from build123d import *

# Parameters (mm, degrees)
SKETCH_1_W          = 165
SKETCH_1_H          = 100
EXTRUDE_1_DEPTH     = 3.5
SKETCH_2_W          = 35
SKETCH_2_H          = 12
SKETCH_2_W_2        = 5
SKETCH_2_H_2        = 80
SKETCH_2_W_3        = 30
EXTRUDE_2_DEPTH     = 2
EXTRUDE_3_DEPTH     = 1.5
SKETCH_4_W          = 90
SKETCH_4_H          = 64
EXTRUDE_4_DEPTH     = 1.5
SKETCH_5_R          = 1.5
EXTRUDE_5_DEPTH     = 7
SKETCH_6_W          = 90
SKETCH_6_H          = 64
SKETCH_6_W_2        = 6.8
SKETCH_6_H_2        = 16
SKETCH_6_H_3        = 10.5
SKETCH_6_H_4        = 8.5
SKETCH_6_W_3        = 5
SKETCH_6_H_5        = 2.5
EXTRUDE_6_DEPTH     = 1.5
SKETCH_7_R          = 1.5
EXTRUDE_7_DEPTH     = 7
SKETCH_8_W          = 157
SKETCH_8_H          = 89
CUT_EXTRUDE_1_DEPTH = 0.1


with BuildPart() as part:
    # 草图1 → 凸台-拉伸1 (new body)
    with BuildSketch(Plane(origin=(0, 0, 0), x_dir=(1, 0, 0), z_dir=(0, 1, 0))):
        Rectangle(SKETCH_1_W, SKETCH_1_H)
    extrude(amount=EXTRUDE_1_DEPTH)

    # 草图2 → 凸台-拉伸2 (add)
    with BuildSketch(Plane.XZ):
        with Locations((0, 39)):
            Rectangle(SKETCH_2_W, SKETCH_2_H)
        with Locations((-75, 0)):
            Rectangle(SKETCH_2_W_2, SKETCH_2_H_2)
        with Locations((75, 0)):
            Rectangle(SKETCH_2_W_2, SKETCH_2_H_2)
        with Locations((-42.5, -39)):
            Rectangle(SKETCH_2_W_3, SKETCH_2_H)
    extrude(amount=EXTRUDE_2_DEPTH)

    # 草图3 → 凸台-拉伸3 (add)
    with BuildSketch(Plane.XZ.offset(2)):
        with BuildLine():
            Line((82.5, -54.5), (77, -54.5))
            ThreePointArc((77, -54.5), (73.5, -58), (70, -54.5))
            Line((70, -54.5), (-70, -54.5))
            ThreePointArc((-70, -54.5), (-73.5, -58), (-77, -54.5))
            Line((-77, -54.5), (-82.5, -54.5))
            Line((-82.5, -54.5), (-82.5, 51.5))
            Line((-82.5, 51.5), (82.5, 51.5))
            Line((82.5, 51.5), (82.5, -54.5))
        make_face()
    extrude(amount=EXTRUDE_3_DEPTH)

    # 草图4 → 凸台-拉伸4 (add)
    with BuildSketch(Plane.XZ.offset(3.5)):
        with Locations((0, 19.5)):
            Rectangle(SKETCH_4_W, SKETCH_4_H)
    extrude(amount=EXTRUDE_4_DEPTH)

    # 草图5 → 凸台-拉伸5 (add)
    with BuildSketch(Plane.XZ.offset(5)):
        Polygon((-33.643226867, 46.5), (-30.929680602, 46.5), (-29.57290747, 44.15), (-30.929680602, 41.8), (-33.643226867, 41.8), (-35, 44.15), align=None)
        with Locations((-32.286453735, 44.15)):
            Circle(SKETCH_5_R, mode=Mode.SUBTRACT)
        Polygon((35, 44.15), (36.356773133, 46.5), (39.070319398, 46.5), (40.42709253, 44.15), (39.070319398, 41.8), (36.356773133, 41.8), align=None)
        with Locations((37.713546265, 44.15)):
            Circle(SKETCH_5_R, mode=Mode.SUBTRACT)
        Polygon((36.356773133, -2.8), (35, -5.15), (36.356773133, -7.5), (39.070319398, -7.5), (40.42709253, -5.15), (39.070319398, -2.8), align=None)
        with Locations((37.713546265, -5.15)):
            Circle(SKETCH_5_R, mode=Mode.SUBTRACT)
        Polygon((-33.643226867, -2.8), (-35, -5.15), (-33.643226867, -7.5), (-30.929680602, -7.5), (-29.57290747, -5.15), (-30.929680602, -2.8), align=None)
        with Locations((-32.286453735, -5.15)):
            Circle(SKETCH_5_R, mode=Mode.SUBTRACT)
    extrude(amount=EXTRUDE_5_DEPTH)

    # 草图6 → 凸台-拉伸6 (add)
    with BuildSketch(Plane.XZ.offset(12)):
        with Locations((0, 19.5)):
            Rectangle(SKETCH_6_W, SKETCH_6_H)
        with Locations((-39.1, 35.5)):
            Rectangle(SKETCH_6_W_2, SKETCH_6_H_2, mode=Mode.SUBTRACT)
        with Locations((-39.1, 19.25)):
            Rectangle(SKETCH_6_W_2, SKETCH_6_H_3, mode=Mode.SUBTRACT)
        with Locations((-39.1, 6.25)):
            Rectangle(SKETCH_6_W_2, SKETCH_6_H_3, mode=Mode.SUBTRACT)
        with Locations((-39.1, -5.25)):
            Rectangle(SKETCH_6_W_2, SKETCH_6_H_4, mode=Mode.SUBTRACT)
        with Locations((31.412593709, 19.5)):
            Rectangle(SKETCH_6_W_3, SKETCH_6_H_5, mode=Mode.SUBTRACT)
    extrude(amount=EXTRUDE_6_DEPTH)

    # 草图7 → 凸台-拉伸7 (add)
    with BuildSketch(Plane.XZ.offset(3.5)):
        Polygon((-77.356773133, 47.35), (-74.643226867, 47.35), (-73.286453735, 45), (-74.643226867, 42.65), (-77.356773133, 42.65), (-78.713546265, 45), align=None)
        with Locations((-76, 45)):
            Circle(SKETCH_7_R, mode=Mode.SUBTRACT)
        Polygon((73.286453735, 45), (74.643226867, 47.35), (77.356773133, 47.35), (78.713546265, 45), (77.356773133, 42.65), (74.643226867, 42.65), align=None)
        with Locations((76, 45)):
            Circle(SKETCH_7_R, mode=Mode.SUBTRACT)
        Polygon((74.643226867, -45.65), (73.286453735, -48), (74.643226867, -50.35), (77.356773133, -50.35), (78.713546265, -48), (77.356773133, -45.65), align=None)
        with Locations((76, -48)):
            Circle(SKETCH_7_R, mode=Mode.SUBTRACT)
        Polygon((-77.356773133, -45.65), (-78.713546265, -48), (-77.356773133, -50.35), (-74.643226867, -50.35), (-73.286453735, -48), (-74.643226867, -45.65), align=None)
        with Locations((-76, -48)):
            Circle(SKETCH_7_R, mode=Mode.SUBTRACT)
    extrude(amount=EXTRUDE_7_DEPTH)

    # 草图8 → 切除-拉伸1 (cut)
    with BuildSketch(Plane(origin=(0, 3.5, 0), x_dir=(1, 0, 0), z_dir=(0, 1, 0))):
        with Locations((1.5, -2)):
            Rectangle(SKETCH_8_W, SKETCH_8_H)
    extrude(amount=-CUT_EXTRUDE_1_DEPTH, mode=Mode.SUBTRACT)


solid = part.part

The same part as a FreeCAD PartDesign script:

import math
import FreeCAD as App
import Part
import Sketcher
Q = App.Units.Quantity


def add_polygon(sketch, points):
    """Adds a closed chain of lines whose ends are joined by coincident constraints."""
    first, n = sketch.GeometryCount, len(points)
    for a, b in zip(points, points[1:] + points[:1]):
        sketch.addGeometry(Part.LineSegment(App.Vector(*a, 0), App.Vector(*b, 0)), False)
    for i in range(n):
        sketch.addConstraint(Sketcher.Constraint("Coincident", first + i, 2, first + (i + 1) % n, 1))

doc = App.newDocument("Part")
body = doc.addObject("PartDesign::Body", "Body")

# Sketch on XZ plane
sketch1 = body.newObject("Sketcher::SketchObject", "Sketch")
sketch1.AttachmentSupport = (doc.getObject("XZ_Plane"), [""])
sketch1.MapMode = "FlatFace"
add_polygon(sketch1, [(-82, -50), (-82, 50), (82, 50), (82, -50)])  # lines 0-3
sketch1.addConstraint(Sketcher.Constraint("Vertical", 0))
sketch1.addConstraint(Sketcher.Constraint("Horizontal", 1))
sketch1.addConstraint(Sketcher.Constraint("Vertical", 2))
sketch1.addConstraint(Sketcher.Constraint("Horizontal", 3))
sketch1.addConstraint(Sketcher.Constraint("Symmetric", 0, 2, 2, 2, -1, 1))
sketch1.addConstraint(Sketcher.Constraint("DistanceX", 1, 1, 1, 2, 165.0))
sketch1.addConstraint(Sketcher.Constraint("DistanceY", 0, 1, 0, 2, 100.0))
pad1 = body.newObject("PartDesign::Pad", "Pad")
pad1.Profile = sketch1
pad1.Length = 3.5
pad1.Reversed = True

# Sketch on XZ plane
sketch2 = body.newObject("Sketcher::SketchObject", "Sketch001")
sketch2.AttachmentSupport = (doc.getObject("XZ_Plane"), [""])
sketch2.MapMode = "FlatFace"
add_polygon(sketch2, [(-18, 45), (-18, 33), (18, 33), (18, 45)])  # lines 0-3
add_polygon(sketch2, [(-78, 40), (-78, -40), (-72, -40), (-72, 40)])  # lines 4-7
add_polygon(sketch2, [(72, 40), (72, -40), (78, -40), (78, 40)])  # lines 8-11
add_polygon(sketch2, [(-58, -33), (-58, -45), (-28, -45), (-28, -33)])  # lines 12-15
sketch2.addConstraint(Sketcher.Constraint("Vertical", 0))
sketch2.addConstraint(Sketcher.Constraint("Horizontal", 1))
sketch2.addConstraint(Sketcher.Constraint("Vertical", 2))
sketch2.addConstraint(Sketcher.Constraint("Horizontal", 3))
sketch2.addConstraint(Sketcher.Constraint("Vertical", 4))
sketch2.addConstraint(Sketcher.Constraint("Horizontal", 5))
sketch2.addConstraint(Sketcher.Constraint("Vertical", 6))
sketch2.addConstraint(Sketcher.Constraint("Horizontal", 7))
sketch2.addConstraint(Sketcher.Constraint("Vertical", 8))
sketch2.addConstraint(Sketcher.Constraint("Horizontal", 9))
sketch2.addConstraint(Sketcher.Constraint("Vertical", 10))
sketch2.addConstraint(Sketcher.Constraint("Horizontal", 11))
sketch2.addConstraint(Sketcher.Constraint("Vertical", 12))
sketch2.addConstraint(Sketcher.Constraint("Horizontal", 13))
sketch2.addConstraint(Sketcher.Constraint("Vertical", 14))
sketch2.addConstraint(Sketcher.Constraint("Horizontal", 15))
sketch2.addConstraint(Sketcher.Constraint("Symmetric", 6, 2, 8, 2, -1, 1))
sketch2.addConstraint(Sketcher.Constraint("Symmetric", 4, 2, 10, 2, -1, 1))
sketch2.addConstraint(Sketcher.Constraint("Horizontal", 5, 2, 8, 2))
sketch2.addConstraint(Sketcher.Constraint("Equal", 2, 12))
sketch2.addConstraint(Sketcher.Constraint("DistanceX", 1, 1, 1, 2, 35.0))
sketch2.addConstraint(Sketcher.Constraint("DistanceX", 5, 1, 5, 2, 5.0))
sketch2.addConstraint(Sketcher.Constraint("DistanceX", 13, 1, 13, 2, 30.0))
sketch2.addConstraint(Sketcher.Constraint("DistanceY", 0, 2, 0, 1, 12.0))
sketch2.addConstraint(Sketcher.Constraint("DistanceY", 4, 2, 4, 1, 80.0))
sketch2.addConstraint(Sketcher.Constraint("DistanceY", -1, 1, 0, 2, 33.0))
sketch2.addConstraint(Sketcher.Constraint("DistanceY", 12, 2, -1, 1, 45.0))
sketch2.addConstraint(Sketcher.Constraint("DistanceX", 4, 2, 0, 2, 60.0))
sketch2.addConstraint(Sketcher.Constraint("DistanceX", 1, 2, 8, 2, 55.0))
sketch2.addConstraint(Sketcher.Constraint("DistanceX", 5, 2, 12, 2, 15.0))
pad2 = body.newObject("PartDesign::Pad", "Pad001")
pad2.Profile = sketch2
pad2.Length = 2

# Sketch on XZ plane
sketch3 = body.newObject("Sketcher::SketchObject", "Sketch002")
sketch3.AttachmentSupport = (doc.getObject("XZ_Plane"), [""])
sketch3.MapMode = "FlatFace"
sketch3.AttachmentOffset = App.Placement(App.Vector(0, 0, 2), App.Rotation())
sketch3.addGeometry(Part.LineSegment(App.Vector(77, -54.5, 0), App.Vector(82.5, -54.5, 0)), False)
sketch3.addGeometry(Part.LineSegment(App.Vector(82.5, -54.5, 0), App.Vector(82.5, 51.5, 0)), False)
sketch3.addGeometry(Part.LineSegment(App.Vector(82.5, 51.5, 0), App.Vector(-82.5, 51.5, 0)), False)
sketch3.addGeometry(Part.LineSegment(App.Vector(-82.5, 51.5, 0), App.Vector(-82.5, -54.5, 0)), False)
sketch3.addGeometry(Part.LineSegment(App.Vector(-82.5, -54.5, 0), App.Vector(-77, -54.5, 0)), False)
sketch3.addGeometry(Part.ArcOfCircle(Part.Circle(App.Vector(-73.5, -54.5, 0), App.Vector(0, 0, 1), 3.5), math.radians(180), math.radians(360)), False)
sketch3.addGeometry(Part.LineSegment(App.Vector(-70, -54.5, 0), App.Vector(70, -54.5, 0)), False)
sketch3.addGeometry(Part.ArcOfCircle(Part.Circle(App.Vector(73.5, -54.5, 0), App.Vector(0, 0, 1), 3.5), math.radians(180), math.radians(360)), False)
sketch3.addConstraint(Sketcher.Constraint("Coincident", 0, 2, 1, 1))
sketch3.addConstraint(Sketcher.Constraint("Coincident", 1, 2, 2, 1))
sketch3.addConstraint(Sketcher.Constraint("Coincident", 2, 2, 3, 1))
sketch3.addConstraint(Sketcher.Constraint("Coincident", 3, 2, 4, 1))
sketch3.addConstraint(Sketcher.Constraint("Coincident", 4, 2, 5, 1))
sketch3.addConstraint(Sketcher.Constraint("Coincident", 5, 2, 6, 1))
sketch3.addConstraint(Sketcher.Constraint("Coincident", 6, 2, 7, 1))
sketch3.addConstraint(Sketcher.Constraint("Coincident", 7, 2, 0, 1))
sketch3.addConstraint(Sketcher.Constraint("Horizontal", 0))
sketch3.addConstraint(Sketcher.Constraint("Vertical", 1))
sketch3.addConstraint(Sketcher.Constraint("Horizontal", 2))
sketch3.addConstraint(Sketcher.Constraint("Vertical", 3))
sketch3.addConstraint(Sketcher.Constraint("Horizontal", 4))
sketch3.addConstraint(Sketcher.Constraint("Horizontal", 6))
sketch3.addConstraint(Sketcher.Constraint("Equal", 5, 7))
sketch3.addConstraint(Sketcher.Constraint("Symmetric", 5, 3, 7, 3, -2))
sketch3.addConstraint(Sketcher.Constraint("Symmetric", 0, 2, 3, 2, -2))
sketch3.addConstraint(Sketcher.Constraint("Horizontal", 7, 3, 0, 2))
sketch3.addConstraint(Sketcher.Constraint("Horizontal", 4, 2, 5, 2))
sketch3.addConstraint(Sketcher.Constraint("Radius", 5, 3.5))
sketch3.addConstraint(Sketcher.Constraint("DistanceX", 2, 2, 2, 1, 165.0))
sketch3.addConstraint(Sketcher.Constraint("DistanceX", 6, 1, 6, 2, 140.0))
sketch3.addConstraint(Sketcher.Constraint("DistanceY", 1, 1, 1, 2, 106.0))
sketch3.addConstraint(Sketcher.Constraint("DistanceY", 5, 3, -1, 1, 54.5))
pad3 = body.newObject("PartDesign::Pad", "Pad002")
pad3.Profile = sketch3
pad3.Length = 1.5

# Sketch on XZ plane
sketch4 = body.newObject("Sketcher::SketchObject", "Sketch003")
sketch4.AttachmentSupport = (doc.getObject("XZ_Plane"), [""])
sketch4.MapMode = "FlatFace"
sketch4.AttachmentOffset = App.Placement(App.Vector(0, 0, 3.5), App.Rotation())
add_polygon(sketch4, [(-45, 52), (-45, -12), (45, -12), (45, 52)])  # lines 0-3
sketch4.addConstraint(Sketcher.Constraint("Vertical", 0))
sketch4.addConstraint(Sketcher.Constraint("Horizontal", 1))
sketch4.addConstraint(Sketcher.Constraint("Vertical", 2))
sketch4.addConstraint(Sketcher.Constraint("Horizontal", 3))
sketch4.addConstraint(Sketcher.Constraint("DistanceX", 1, 1, 1, 2, 90.0))
sketch4.addConstraint(Sketcher.Constraint("DistanceY", 0, 2, 0, 1, 64.0))
sketch4.addConstraint(Sketcher.Constraint("DistanceX", 0, 2, -1, 1, 45.0))
sketch4.addConstraint(Sketcher.Constraint("DistanceY", 0, 2, -1, 1, 12.5))
pad4 = body.newObject("PartDesign::Pad", "Pad003")
pad4.Profile = sketch4
pad4.Length = 1.5

# Sketch on XZ plane
sketch5 = body.newObject("Sketcher::SketchObject", "Sketch004")
sketch5.AttachmentSupport = (doc.getObject("XZ_Plane"), [""])
sketch5.MapMode = "FlatFace"
sketch5.AttachmentOffset = App.Placement(App.Vector(0, 0, 5), App.Rotation())
add_polygon(sketch5, [(-30.9, 46.5), (-33.6, 46.5), (-35, 44.1), (-33.6, 41.8), (-30.9, 41.8), (-29.6, 44.1)])  # lines 0-5
sketch5.addGeometry(Part.Circle(App.Vector(-32.3, 44.1, 0), App.Vector(0, 0, 1), 1.5), False)  # 6
add_polygon(sketch5, [(36.4, 46.5), (35, 44.1), (36.4, 41.8), (39.1, 41.8), (40.4, 44.1), (39.1, 46.5)])  # lines 7-12
sketch5.addGeometry(Part.Circle(App.Vector(37.7, 44.1, 0), App.Vector(0, 0, 1), 1.5), False)  # 13
add_polygon(sketch5, [(36.4, -2.8), (35, -5.2), (36.4, -7.5), (39.1, -7.5), (40.4, -5.2), (39.1, -2.8)])  # lines 14-19
sketch5.addGeometry(Part.Circle(App.Vector(37.7, -5.2, 0), App.Vector(0, 0, 1), 1.5), False)  # 20
add_polygon(sketch5, [(-33.6, -2.8), (-35, -5.2), (-33.6, -7.5), (-30.9, -7.5), (-29.6, -5.2), (-30.9, -2.8)])  # lines 21-26
sketch5.addGeometry(Part.Circle(App.Vector(-32.3, -5.2, 0), App.Vector(0, 0, 1), 1.5), False)  # 27
sketch5.addConstraint(Sketcher.Constraint("Horizontal", 0))
sketch5.addConstraint(Sketcher.Constraint("Horizontal", 3))
sketch5.addConstraint(Sketcher.Constraint("Horizontal", 9))
sketch5.addConstraint(Sketcher.Constraint("Horizontal", 12))
sketch5.addConstraint(Sketcher.Constraint("Horizontal", 16))
sketch5.addConstraint(Sketcher.Constraint("Horizontal", 19))
sketch5.addConstraint(Sketcher.Constraint("Horizontal", 23))
sketch5.addConstraint(Sketcher.Constraint("Horizontal", 26))
sketch5.addConstraint(Sketcher.Constraint("Equal", 6, 13))
sketch5.addConstraint(Sketcher.Constraint("Equal", 13, 20))
sketch5.addConstraint(Sketcher.Constraint("Equal", 20, 27))
sketch5.addConstraint(Sketcher.Constraint("Symmetric", 1, 2, 7, 2, -2))
sketch5.addConstraint(Sketcher.Constraint("Symmetric", 14, 2, 21, 2, -2))
sketch5.addConstraint(Sketcher.Constraint("Parallel", 1, 4))
sketch5.addConstraint(Sketcher.Constraint("Parallel", 2, 5))
sketch5.addConstraint(Sketcher.Constraint("Parallel", 4, 7))
sketch5.addConstraint(Sketcher.Constraint("Parallel", 5, 8))
sketch5.addConstraint(Sketcher.Constraint("Parallel", 7, 10))
sketch5.addConstraint(Sketcher.Constraint("Parallel", 8, 11))
sketch5.addConstraint(Sketcher.Constraint("Parallel", 10, 14))
sketch5.addConstraint(Sketcher.Constraint("Parallel", 11, 15))
sketch5.addConstraint(Sketcher.Constraint("Parallel", 14, 17))
sketch5.addConstraint(Sketcher.Constraint("Parallel", 15, 18))
sketch5.addConstraint(Sketcher.Constraint("Parallel", 17, 21))
sketch5.addConstraint(Sketcher.Constraint("Parallel", 18, 22))
sketch5.addConstraint(Sketcher.Constraint("Parallel", 21, 24))
sketch5.addConstraint(Sketcher.Constraint("Parallel", 22, 25))
sketch5.addConstraint(Sketcher.Constraint("Horizontal", 6, 3, 13, 3))
sketch5.addConstraint(Sketcher.Constraint("Horizontal", 20, 3, 27, 3))
sketch5.addConstraint(Sketcher.Constraint("Horizontal", 13, 3, 1, 2))
sketch5.addConstraint(Sketcher.Constraint("Horizontal", 1, 2, 4, 2))
sketch5.addConstraint(Sketcher.Constraint("Horizontal", 3, 2, 8, 2))
sketch5.addConstraint(Sketcher.Constraint("Horizontal", 7, 2, 10, 2))
sketch5.addConstraint(Sketcher.Constraint("Horizontal", 5, 2, 11, 2))
sketch5.addConstraint(Sketcher.Constraint("Horizontal", 27, 3, 14, 2))
sketch5.addConstraint(Sketcher.Constraint("Horizontal", 14, 2, 17, 2))
sketch5.addConstraint(Sketcher.Constraint("Horizontal", 16, 2, 22, 2))
sketch5.addConstraint(Sketcher.Constraint("Horizontal", 21, 2, 24, 2))
sketch5.addConstraint(Sketcher.Constraint("Horizontal", 19, 2, 25, 2))
sketch5.addConstraint(Sketcher.Constraint("Vertical", 13, 3, 20, 3))
sketch5.addConstraint(Sketcher.Constraint("Vertical", 6, 3, 27, 3))
sketch5.addConstraint(Sketcher.Constraint("Vertical", 0, 2, 2, 2))
sketch5.addConstraint(Sketcher.Constraint("Vertical", 3, 2, 5, 2))
sketch5.addConstraint(Sketcher.Constraint("Vertical", 7, 2, 14, 2))
sketch5.addConstraint(Sketcher.Constraint("Vertical", 12, 2, 15, 2))
sketch5.addConstraint(Sketcher.Constraint("Vertical", 11, 2, 16, 2))
sketch5.addConstraint(Sketcher.Constraint("Vertical", 16, 2, 18, 2))
sketch5.addConstraint(Sketcher.Constraint("Vertical", 5, 2, 23, 2))
sketch5.addConstraint(Sketcher.Constraint("Equal", 3, 9))
sketch5.addConstraint(Sketcher.Constraint("Diameter", 6, 3.0))
sketch5.addConstraint(Sketcher.Constraint("Angle", 1, Q("-120 deg")))
sketch5.addConstraint(Sketcher.Constraint("DistanceX", 1, 2, -1, 1, 35.0))
sketch5.addConstraint(Sketcher.Constraint("DistanceX", 6, 3, 13, 3, 70.0))
sketch5.addConstraint(Sketcher.Constraint("DistanceY", -1, 1, 0, 2, 46.5))
sketch5.addConstraint(Sketcher.Constraint("DistanceY", -1, 1, 2, 2, 41.8))
sketch5.addConstraint(Sketcher.Constraint("DistanceY", 15, 2, -1, 1, 7.5))
sketch5.addConstraint(Sketcher.Constraint("DistanceX", 0, 2, 0, 1, 2.713546))
sketch5.addConstraint(Sketcher.Constraint("DistanceX", 6, 3, -1, 1, 32.286454))
pad5 = body.newObject("PartDesign::Pad", "Pad004")
pad5.Profile = sketch5
pad5.Length = 7

# Sketch on XZ plane
sketch6 = body.newObject("Sketcher::SketchObject", "Sketch005")
sketch6.AttachmentSupport = (doc.getObject("XZ_Plane"), [""])
sketch6.MapMode = "FlatFace"
sketch6.AttachmentOffset = App.Placement(App.Vector(0, 0, 12), App.Rotation())
add_polygon(sketch6, [(-45, 51.5), (-45, -12.5), (45, -12.5), (45, 51.5)])  # lines 0-3
add_polygon(sketch6, [(-35.7, -9.5), (-42.5, -9.5), (-42.5, -1), (-35.7, -1)])  # lines 4-7
add_polygon(sketch6, [(-35.7, 1), (-42.5, 1), (-42.5, 11.5), (-35.7, 11.5)])  # lines 8-11
add_polygon(sketch6, [(-35.7, 14), (-42.5, 14), (-42.5, 24.5), (-35.7, 24.5)])  # lines 12-15
add_polygon(sketch6, [(-35.7, 27.5), (-42.5, 27.5), (-42.5, 43.5), (-35.7, 43.5)])  # lines 16-19
add_polygon(sketch6, [(33.9, 18.2), (28.9, 18.2), (28.9, 20.8), (33.9, 20.8)])  # lines 20-23
sketch6.addConstraint(Sketcher.Constraint("Vertical", 0))
sketch6.addConstraint(Sketcher.Constraint("Horizontal", 1))
sketch6.addConstraint(Sketcher.Constraint("Vertical", 2))
sketch6.addConstraint(Sketcher.Constraint("Horizontal", 3))
sketch6.addConstraint(Sketcher.Constraint("Horizontal", 4))
sketch6.addConstraint(Sketcher.Constraint("Vertical", 5))
sketch6.addConstraint(Sketcher.Constraint("Horizontal", 6))
sketch6.addConstraint(Sketcher.Constraint("Vertical", 7))
sketch6.addConstraint(Sketcher.Constraint("Horizontal", 8))
sketch6.addConstraint(Sketcher.Constraint("Vertical", 9))
sketch6.addConstraint(Sketcher.Constraint("Horizontal", 10))
sketch6.addConstraint(Sketcher.Constraint("Vertical", 11))
sketch6.addConstraint(Sketcher.Constraint("Horizontal", 12))
sketch6.addConstraint(Sketcher.Constraint("Vertical", 13))
sketch6.addConstraint(Sketcher.Constraint("Horizontal", 14))
sketch6.addConstraint(Sketcher.Constraint("Vertical", 15))
sketch6.addConstraint(Sketcher.Constraint("Horizontal", 16))
sketch6.addConstraint(Sketcher.Constraint("Vertical", 17))
sketch6.addConstraint(Sketcher.Constraint("Horizontal", 18))
sketch6.addConstraint(Sketcher.Constraint("Vertical", 19))
sketch6.addConstraint(Sketcher.Constraint("Horizontal", 20))
sketch6.addConstraint(Sketcher.Constraint("Vertical", 21))
sketch6.addConstraint(Sketcher.Constraint("Horizontal", 22))
sketch6.addConstraint(Sketcher.Constraint("Vertical", 23))
sketch6.addConstraint(Sketcher.Constraint("Symmetric", 5, 2, 8, 2, -1))
sketch6.addConstraint(Sketcher.Constraint("Vertical", 7, 2, 10, 2))
sketch6.addConstraint(Sketcher.Constraint("Vertical", 9, 2, 12, 2))
sketch6.addConstraint(Sketcher.Constraint("Vertical", 11, 2, 14, 2))
sketch6.addConstraint(Sketcher.Constraint("Vertical", 13, 2, 16, 2))
sketch6.addConstraint(Sketcher.Constraint("Vertical", 15, 2, 18, 2))
sketch6.addConstraint(Sketcher.Constraint("Equal", 11, 13))
sketch6.addConstraint(Sketcher.Constraint("DistanceX", 1, 1, 1, 2, 90.0))
sketch6.addConstraint(Sketcher.Constraint("DistanceX", 20, 2, 20, 1, 5.0))
sketch6.addConstraint(Sketcher.Constraint("DistanceY", 0, 2, 0, 1, 64.0))
sketch6.addConstraint(Sketcher.Constraint("DistanceY", 17, 1, 17, 2, 16.0))
sketch6.addConstraint(Sketcher.Constraint("DistanceX", 4, 2, 4, 1, 6.8))
sketch6.addConstraint(Sketcher.Constraint("DistanceY", 5, 1, 5, 2, 8.5))
sketch6.addConstraint(Sketcher.Constraint("DistanceY", 9, 1, 9, 2, 10.5))
sketch6.addConstraint(Sketcher.Constraint("DistanceY", 21, 1, 21, 2, 2.5))
sketch6.addConstraint(Sketcher.Constraint("DistanceX", 0, 2, -1, 1, 45.0))
sketch6.addConstraint(Sketcher.Constraint("DistanceY", 5, 2, -1, 1, 1.0))
sketch6.addConstraint(Sketcher.Constraint("DistanceY", -1, 1, 12, 2, 14.0))
sketch6.addConstraint(Sketcher.Constraint("DistanceY", 0, 2, 4, 2, 3.0))
sketch6.addConstraint(Sketcher.Constraint("DistanceY", 13, 2, 16, 2, 3.0))
sketch6.addConstraint(Sketcher.Constraint("DistanceX", 4, 2, -1, 1, 42.5))
sketch6.addConstraint(Sketcher.Constraint("DistanceY", -1, 1, 20, 2, 18.25))
sketch6.addConstraint(Sketcher.Constraint("DistanceX", -1, 1, 20, 2, 28.912594))
pad6 = body.newObject("PartDesign::Pad", "Pad005")
pad6.Profile = sketch6
pad6.Length = 1.5

# Sketch on XZ plane
sketch7 = body.newObject("Sketcher::SketchObject", "Sketch006")
sketch7.AttachmentSupport = (doc.getObject("XZ_Plane"), [""])
sketch7.MapMode = "FlatFace"
sketch7.AttachmentOffset = App.Placement(App.Vector(0, 0, 3.5), App.Rotation())
add_polygon(sketch7, [(-74.6, 47.4), (-77.4, 47.4), (-78.7, 45), (-77.4, 42.6), (-74.6, 42.6), (-73.3, 45)])  # lines 0-5
sketch7.addGeometry(Part.Circle(App.Vector(-76, 45, 0), App.Vector(0, 0, 1), 1.5), False)  # 6
add_polygon(sketch7, [(74.6, 47.4), (73.3, 45), (74.6, 42.6), (77.4, 42.6), (78.7, 45), (77.4, 47.4)])  # lines 7-12
sketch7.addGeometry(Part.Circle(App.Vector(76, 45, 0), App.Vector(0, 0, 1), 1.5), False)  # 13
add_polygon(sketch7, [(74.6, -45.6), (73.3, -48), (74.6, -50.4), (77.4, -50.4), (78.7, -48), (77.4, -45.6)])  # lines 14-19
sketch7.addGeometry(Part.Circle(App.Vector(76, -48, 0), App.Vector(0, 0, 1), 1.5), False)  # 20
add_polygon(sketch7, [(-77.4, -45.6), (-78.7, -48), (-77.4, -50.4), (-74.6, -50.4), (-73.3, -48), (-74.6, -45.6)])  # lines 21-26
sketch7.addGeometry(Part.Circle(App.Vector(-76, -48, 0), App.Vector(0, 0, 1), 1.5), False)  # 27
sketch7.addConstraint(Sketcher.Constraint("Horizontal", 0))
sketch7.addConstraint(Sketcher.Constraint("Horizontal", 3))
sketch7.addConstraint(Sketcher.Constraint("Horizontal", 9))
sketch7.addConstraint(Sketcher.Constraint("Horizontal", 12))
sketch7.addConstraint(Sketcher.Constraint("Horizontal", 16))
sketch7.addConstraint(Sketcher.Constraint("Horizontal", 19))
sketch7.addConstraint(Sketcher.Constraint("Horizontal", 23))
sketch7.addConstraint(Sketcher.Constraint("Horizontal", 26))
sketch7.addConstraint(Sketcher.Constraint("Equal", 6, 13))
sketch7.addConstraint(Sketcher.Constraint("Equal", 13, 20))
sketch7.addConstraint(Sketcher.Constraint("Equal", 20, 27))
sketch7.addConstraint(Sketcher.Constraint("Symmetric", 6, 3, 13, 3, -2))
sketch7.addConstraint(Sketcher.Constraint("Symmetric", 20, 3, 27, 3, -2))
sketch7.addConstraint(Sketcher.Constraint("Symmetric", 4, 2, 7, 2, -2))
sketch7.addConstraint(Sketcher.Constraint("Symmetric", 3, 2, 8, 2, -2))
sketch7.addConstraint(Sketcher.Constraint("Symmetric", 1, 2, 10, 2, -2))
sketch7.addConstraint(Sketcher.Constraint("Symmetric", 0, 2, 11, 2, -2))
sketch7.addConstraint(Sketcher.Constraint("Symmetric", 17, 2, 21, 2, -2))
sketch7.addConstraint(Sketcher.Constraint("Symmetric", 16, 2, 22, 2, -2))
sketch7.addConstraint(Sketcher.Constraint("Symmetric", 14, 2, 24, 2, -2))
sketch7.addConstraint(Sketcher.Constraint("Symmetric", 19, 2, 25, 2, -2))
sketch7.addConstraint(Sketcher.Constraint("Parallel", 1, 4))
sketch7.addConstraint(Sketcher.Constraint("Parallel", 2, 5))
sketch7.addConstraint(Sketcher.Constraint("Parallel", 4, 7))
sketch7.addConstraint(Sketcher.Constraint("Parallel", 5, 8))
sketch7.addConstraint(Sketcher.Constraint("Parallel", 7, 10))
sketch7.addConstraint(Sketcher.Constraint("Parallel", 10, 14))
sketch7.addConstraint(Sketcher.Constraint("Parallel", 11, 15))
sketch7.addConstraint(Sketcher.Constraint("Parallel", 14, 17))
sketch7.addConstraint(Sketcher.Constraint("Parallel", 15, 18))
sketch7.addConstraint(Sketcher.Constraint("Parallel", 17, 21))
sketch7.addConstraint(Sketcher.Constraint("Parallel", 21, 24))
sketch7.addConstraint(Sketcher.Constraint("Horizontal", 13, 3, 1, 2))
sketch7.addConstraint(Sketcher.Constraint("Horizontal", 1, 2, 4, 2))
sketch7.addConstraint(Sketcher.Constraint("Horizontal", 27, 3, 14, 2))
sketch7.addConstraint(Sketcher.Constraint("Horizontal", 14, 2, 17, 2))
sketch7.addConstraint(Sketcher.Constraint("Vertical", 13, 3, 20, 3))
sketch7.addConstraint(Sketcher.Constraint("Vertical", 0, 2, 2, 2))
sketch7.addConstraint(Sketcher.Constraint("Vertical", 7, 2, 14, 2))
sketch7.addConstraint(Sketcher.Constraint("Vertical", 12, 2, 15, 2))
sketch7.addConstraint(Sketcher.Constraint("Vertical", 11, 2, 16, 2))
sketch7.addConstraint(Sketcher.Constraint("Vertical", 16, 2, 18, 2))
sketch7.addConstraint(Sketcher.Constraint("Diameter", 6, 3.0))
sketch7.addConstraint(Sketcher.Constraint("Angle", 1, Q("-120 deg")))
sketch7.addConstraint(Sketcher.Constraint("DistanceX", 6, 3, -1, 1, 76.0))
sketch7.addConstraint(Sketcher.Constraint("DistanceY", -1, 1, 6, 3, 45.0))
sketch7.addConstraint(Sketcher.Constraint("DistanceY", 20, 3, -1, 1, 48.0))
sketch7.addConstraint(Sketcher.Constraint("DistanceY", 2, 2, 0, 2, 4.7))
sketch7.addConstraint(Sketcher.Constraint("DistanceX", 0, 2, 0, 1, 2.713546))
sketch7.addConstraint(Sketcher.Constraint("DistanceX", 3, 2, 7, 2, 147.929681))
pad7 = body.newObject("PartDesign::Pad", "Pad006")
pad7.Profile = sketch7
pad7.Length = 7

# Sketch on XZ plane
sketch8 = body.newObject("Sketcher::SketchObject", "Sketch007")
sketch8.AttachmentSupport = (doc.getObject("XZ_Plane"), [""])
sketch8.MapMode = "FlatFace"
sketch8.AttachmentOffset = App.Placement(App.Vector(0, 0, -3.5), App.Rotation())
add_polygon(sketch8, [(-77, -42), (-77, 46), (80, 46), (80, -42)])  # lines 0-3
sketch8.addConstraint(Sketcher.Constraint("Vertical", 0))
sketch8.addConstraint(Sketcher.Constraint("Horizontal", 1))
sketch8.addConstraint(Sketcher.Constraint("Vertical", 2))
sketch8.addConstraint(Sketcher.Constraint("Horizontal", 3))
sketch8.addConstraint(Sketcher.Constraint("DistanceX", 1, 1, 1, 2, 157.0))
sketch8.addConstraint(Sketcher.Constraint("DistanceY", 0, 1, 0, 2, 89.0))
sketch8.addConstraint(Sketcher.Constraint("DistanceX", 0, 2, -1, 1, 77.0))
sketch8.addConstraint(Sketcher.Constraint("DistanceY", -1, 1, 0, 2, 46.5))
pocket1 = body.newObject("PartDesign::Pocket", "Pocket")
pocket1.Profile = sketch8
pocket1.Length = 0.1
pocket1.Reversed = True

doc.recompute()
